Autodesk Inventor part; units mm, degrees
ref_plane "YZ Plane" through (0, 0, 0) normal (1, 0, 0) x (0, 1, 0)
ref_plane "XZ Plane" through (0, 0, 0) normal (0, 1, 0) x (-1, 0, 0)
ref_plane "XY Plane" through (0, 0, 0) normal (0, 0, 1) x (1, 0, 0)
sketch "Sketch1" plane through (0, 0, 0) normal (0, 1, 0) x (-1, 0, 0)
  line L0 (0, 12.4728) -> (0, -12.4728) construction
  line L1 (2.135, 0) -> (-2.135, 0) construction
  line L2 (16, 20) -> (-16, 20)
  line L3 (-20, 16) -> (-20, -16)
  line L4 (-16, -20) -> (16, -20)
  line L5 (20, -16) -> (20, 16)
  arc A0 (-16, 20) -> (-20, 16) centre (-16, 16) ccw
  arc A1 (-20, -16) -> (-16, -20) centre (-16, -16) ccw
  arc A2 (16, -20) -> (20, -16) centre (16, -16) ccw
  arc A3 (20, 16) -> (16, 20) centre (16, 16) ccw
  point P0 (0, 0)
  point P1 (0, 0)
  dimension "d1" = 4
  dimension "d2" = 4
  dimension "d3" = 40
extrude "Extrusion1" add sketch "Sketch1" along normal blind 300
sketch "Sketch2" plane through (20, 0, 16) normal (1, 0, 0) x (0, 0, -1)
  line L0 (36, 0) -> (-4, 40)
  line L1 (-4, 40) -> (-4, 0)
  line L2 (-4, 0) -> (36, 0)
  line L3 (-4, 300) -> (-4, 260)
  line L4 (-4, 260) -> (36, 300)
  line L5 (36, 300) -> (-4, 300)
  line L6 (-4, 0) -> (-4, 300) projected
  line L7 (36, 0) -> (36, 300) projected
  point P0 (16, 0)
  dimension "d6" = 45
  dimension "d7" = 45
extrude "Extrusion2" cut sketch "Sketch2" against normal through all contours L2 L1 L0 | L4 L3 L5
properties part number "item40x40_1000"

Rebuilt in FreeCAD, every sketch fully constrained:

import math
import FreeCAD as App
import Part
import Sketcher

V = App.Vector
Q = App.Units.Quantity


def add_polygon(sketch, points):
    """Adds a closed chain of lines whose ends are joined by coincident constraints."""
    first, n = sketch.GeometryCount, len(points)
    for a, b in zip(points, points[1:] + points[:1]):
        sketch.addGeometry(Part.LineSegment(App.Vector(*a, 0), App.Vector(*b, 0)), False)
    for i in range(n):
        sketch.addConstraint(Sketcher.Constraint("Coincident", first + i, 2, first + (i + 1) % n, 1))

doc = App.newDocument("Part")
body = doc.addObject("PartDesign::Body", "Body")

# Sketch on XZ plane
sketch1 = doc.addObject("Sketcher::SketchObject", "Sketch")
body.addObject(sketch1)
sketch1.AttachmentSupport = (doc.XZ_Plane, [""])
sketch1.MapMode = "FlatFace"
sketch1.addGeometry(Part.ArcOfCircle(Part.Circle(V(-16, 16, 0), V(0, 0, 1), 4), math.radians(90), math.radians(180)), False)
sketch1.addGeometry(Part.LineSegment(V(-16, 20, 0), V(16, 20, 0)), False)
sketch1.addGeometry(Part.ArcOfCircle(Part.Circle(V(16, 16, 0), V(0, 0, 1), 4), math.radians(0), math.radians(90)), False)
sketch1.addGeometry(Part.LineSegment(V(20, 16, 0), V(20, -16, 0)), False)
sketch1.addGeometry(Part.ArcOfCircle(Part.Circle(V(16, -16, 0), V(0, 0, 1), 4), math.radians(-90), math.radians(0)), False)
sketch1.addGeometry(Part.LineSegment(V(16, -20, 0), V(-16, -20, 0)), False)
sketch1.addGeometry(Part.ArcOfCircle(Part.Circle(V(-16, -16, 0), V(0, 0, 1), 4), math.radians(180), math.radians(270)), False)
sketch1.addGeometry(Part.LineSegment(V(-20, -16, 0), V(-20, 16, 0)), False)
sketch1.addConstraint(Sketcher.Constraint("Tangent", 0, 1, 1, 1))
sketch1.addConstraint(Sketcher.Constraint("Tangent", 1, 2, 2, 2))
sketch1.addConstraint(Sketcher.Constraint("Tangent", 2, 1, 3, 1))
sketch1.addConstraint(Sketcher.Constraint("Tangent", 3, 2, 4, 2))
sketch1.addConstraint(Sketcher.Constraint("Tangent", 4, 1, 5, 1))
sketch1.addConstraint(Sketcher.Constraint("Tangent", 5, 2, 6, 2))
sketch1.addConstraint(Sketcher.Constraint("Tangent", 6, 1, 7, 1))
sketch1.addConstraint(Sketcher.Constraint("Tangent", 7, 2, 0, 2))
sketch1.addConstraint(Sketcher.Constraint("Horizontal", 1))
sketch1.addConstraint(Sketcher.Constraint("Vertical", 3))
sketch1.addConstraint(Sketcher.Constraint("Horizontal", 5))
sketch1.addConstraint(Sketcher.Constraint("Vertical", 7))
sketch1.addConstraint(Sketcher.Constraint("Equal", 0, 2))
sketch1.addConstraint(Sketcher.Constraint("Equal", 2, 4))
sketch1.addConstraint(Sketcher.Constraint("Equal", 4, 6))
sketch1.addConstraint(Sketcher.Constraint("Symmetric", 0, 3, 4, 3, -1, 1))
sketch1.addConstraint(Sketcher.Constraint("Equal", 5, 3))
sketch1.addConstraint(Sketcher.Constraint("Radius", 0, Q("4 mm")))
sketch1.addConstraint(Sketcher.Constraint("DistanceX", 1, 1, 1, 2, Q("32 mm")))
pad1 = doc.addObject("PartDesign::Pad", "Pad")
body.addObject(pad1)
pad1.Profile = sketch1
pad1.Length = 300
pad1.Reversed = True

# Sketch on YZ plane
sketch2 = doc.addObject("Sketcher::SketchObject", "Sketch001")
body.addObject(sketch2)
sketch2.AttachmentSupport = (doc.YZ_Plane, [""])
sketch2.MapMode = "FlatFace"
sketch2.AttachmentOffset = App.Placement(V(0, 0, 20), App.Rotation())
add_polygon(sketch2, [(0, 20), (0, -20), (40, 20)])  # lines 0-2
add_polygon(sketch2, [(260, 20), (300, -20), (300, 20)])  # lines 3-5
sketch2.addConstraint(Sketcher.Constraint("Vertical", 0))
sketch2.addConstraint(Sketcher.Constraint("Horizontal", 2))
sketch2.addConstraint(Sketcher.Constraint("Vertical", 4))
sketch2.addConstraint(Sketcher.Constraint("Horizontal", 5))
sketch2.addConstraint(Sketcher.Constraint("Symmetric", 0, 2, 2, 2, -1, 1))
sketch2.addConstraint(Sketcher.Constraint("Perpendicular", 1, 3))
sketch2.addConstraint(Sketcher.Constraint("Horizontal", 0, 2, 3, 2))
sketch2.addConstraint(Sketcher.Constraint("Horizontal", 2, 2, 4, 2))
sketch2.addConstraint(Sketcher.Constraint("Equal", 2, 5))
sketch2.addConstraint(Sketcher.Constraint("DistanceX", 2, 2, 2, 1, Q("40 mm")))
sketch2.addConstraint(Sketcher.Constraint("DistanceX", -1, 1, 3, 2, Q("300 mm")))
pocket1 = doc.addObject("PartDesign::Pocket", "Pocket")
body.addObject(pocket1)
pocket1.Profile = sketch2
pocket1.Type = "ThroughAll"

doc.recompute()
